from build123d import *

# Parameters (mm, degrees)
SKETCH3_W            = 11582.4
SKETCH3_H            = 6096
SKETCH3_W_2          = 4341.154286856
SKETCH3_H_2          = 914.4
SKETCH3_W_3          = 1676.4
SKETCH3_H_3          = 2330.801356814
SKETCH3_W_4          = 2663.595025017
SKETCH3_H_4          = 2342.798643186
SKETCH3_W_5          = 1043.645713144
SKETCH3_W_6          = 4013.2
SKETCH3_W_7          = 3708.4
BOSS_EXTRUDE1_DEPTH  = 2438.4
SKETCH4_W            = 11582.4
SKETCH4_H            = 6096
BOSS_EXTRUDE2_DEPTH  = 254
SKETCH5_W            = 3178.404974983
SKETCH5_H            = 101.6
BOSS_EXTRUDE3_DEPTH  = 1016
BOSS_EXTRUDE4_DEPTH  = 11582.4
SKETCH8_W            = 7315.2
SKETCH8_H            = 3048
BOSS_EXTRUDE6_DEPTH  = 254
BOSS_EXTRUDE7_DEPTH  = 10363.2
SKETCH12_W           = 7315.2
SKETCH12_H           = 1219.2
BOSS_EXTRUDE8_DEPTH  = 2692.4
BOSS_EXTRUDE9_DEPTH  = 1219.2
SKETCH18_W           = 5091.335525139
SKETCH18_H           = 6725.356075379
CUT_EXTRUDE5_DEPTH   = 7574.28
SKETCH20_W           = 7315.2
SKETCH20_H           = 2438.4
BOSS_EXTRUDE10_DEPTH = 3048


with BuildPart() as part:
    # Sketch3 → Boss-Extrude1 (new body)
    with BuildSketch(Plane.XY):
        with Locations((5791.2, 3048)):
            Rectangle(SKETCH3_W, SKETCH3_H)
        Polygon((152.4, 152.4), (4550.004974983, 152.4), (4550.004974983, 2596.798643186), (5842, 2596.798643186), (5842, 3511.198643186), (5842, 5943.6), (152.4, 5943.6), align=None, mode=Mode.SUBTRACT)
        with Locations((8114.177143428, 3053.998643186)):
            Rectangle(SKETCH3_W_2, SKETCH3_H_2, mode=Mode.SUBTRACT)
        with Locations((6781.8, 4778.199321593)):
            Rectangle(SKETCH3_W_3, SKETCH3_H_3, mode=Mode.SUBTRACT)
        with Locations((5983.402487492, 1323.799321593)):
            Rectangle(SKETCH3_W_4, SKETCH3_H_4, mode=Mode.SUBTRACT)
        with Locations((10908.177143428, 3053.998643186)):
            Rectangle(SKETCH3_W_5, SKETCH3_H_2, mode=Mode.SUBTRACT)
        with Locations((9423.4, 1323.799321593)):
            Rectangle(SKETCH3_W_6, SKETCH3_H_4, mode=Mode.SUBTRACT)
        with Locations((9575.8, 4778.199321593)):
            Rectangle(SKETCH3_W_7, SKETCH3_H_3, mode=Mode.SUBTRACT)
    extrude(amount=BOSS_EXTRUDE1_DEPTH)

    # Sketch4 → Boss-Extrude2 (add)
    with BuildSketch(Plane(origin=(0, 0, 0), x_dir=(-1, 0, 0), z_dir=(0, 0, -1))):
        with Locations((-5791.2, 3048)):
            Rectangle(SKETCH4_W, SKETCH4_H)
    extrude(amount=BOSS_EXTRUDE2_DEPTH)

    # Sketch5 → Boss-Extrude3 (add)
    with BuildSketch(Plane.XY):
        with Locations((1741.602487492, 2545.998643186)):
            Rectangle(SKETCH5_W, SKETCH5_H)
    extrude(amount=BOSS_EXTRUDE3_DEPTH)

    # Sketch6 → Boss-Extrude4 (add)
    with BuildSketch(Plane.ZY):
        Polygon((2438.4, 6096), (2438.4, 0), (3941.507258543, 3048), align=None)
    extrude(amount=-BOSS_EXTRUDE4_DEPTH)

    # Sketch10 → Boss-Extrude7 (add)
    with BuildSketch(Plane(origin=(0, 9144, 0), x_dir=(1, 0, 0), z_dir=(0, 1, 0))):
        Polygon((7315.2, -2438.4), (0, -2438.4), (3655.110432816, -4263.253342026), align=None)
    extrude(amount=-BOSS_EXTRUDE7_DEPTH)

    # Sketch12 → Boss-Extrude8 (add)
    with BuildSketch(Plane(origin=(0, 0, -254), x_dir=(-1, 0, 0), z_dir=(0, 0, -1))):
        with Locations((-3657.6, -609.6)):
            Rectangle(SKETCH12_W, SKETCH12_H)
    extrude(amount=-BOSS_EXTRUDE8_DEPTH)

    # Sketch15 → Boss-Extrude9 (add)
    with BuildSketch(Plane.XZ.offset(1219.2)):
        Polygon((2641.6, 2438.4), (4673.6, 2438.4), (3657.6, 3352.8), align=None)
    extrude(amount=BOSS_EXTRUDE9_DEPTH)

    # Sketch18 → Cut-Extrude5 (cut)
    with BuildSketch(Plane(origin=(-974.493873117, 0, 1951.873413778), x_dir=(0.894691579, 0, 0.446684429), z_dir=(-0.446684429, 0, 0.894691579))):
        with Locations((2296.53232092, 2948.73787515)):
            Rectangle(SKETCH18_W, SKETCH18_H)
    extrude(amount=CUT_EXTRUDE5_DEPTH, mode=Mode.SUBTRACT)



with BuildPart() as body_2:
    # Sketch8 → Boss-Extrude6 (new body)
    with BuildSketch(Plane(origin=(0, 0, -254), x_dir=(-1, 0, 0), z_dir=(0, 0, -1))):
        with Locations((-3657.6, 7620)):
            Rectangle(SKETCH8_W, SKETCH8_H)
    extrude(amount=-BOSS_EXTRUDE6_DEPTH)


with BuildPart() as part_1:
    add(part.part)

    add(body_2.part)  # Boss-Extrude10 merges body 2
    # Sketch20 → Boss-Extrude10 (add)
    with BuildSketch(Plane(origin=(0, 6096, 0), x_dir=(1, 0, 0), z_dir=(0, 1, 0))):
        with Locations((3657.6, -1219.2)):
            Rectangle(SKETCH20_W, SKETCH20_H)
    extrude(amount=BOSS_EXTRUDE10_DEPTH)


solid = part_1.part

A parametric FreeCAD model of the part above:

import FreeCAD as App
import Part
import Sketcher
from FreeCAD import Vector
Q = App.Units.Quantity

doc = App.newDocument("Part")
body = doc.addObject("PartDesign::Body", "Body")

# Sketch on XY plane
sketch1 = doc.addObject("Sketcher::SketchObject", "Sketch")
body.addObject(sketch1)
sketch1.AttachmentSupport = (doc.XY_Plane, [""])
sketch1.MapMode = "FlatFace"
sketch1.addGeometry([
    Part.LineSegment(Vector(0, 6096, 0), Vector(0, 0, 0)),  # 0
    Part.LineSegment(Vector(0, 0, 0), Vector(11582.4, 0, 0)),  # 1
    Part.LineSegment(Vector(11582.4, 0, 0), Vector(11582.4, 6096, 0)),  # 2
    Part.LineSegment(Vector(11582.4, 6096, 0), Vector(0, 6096, 0)),  # 3
    Part.LineSegment(Vector(7315.2, 152.4, 0), Vector(4651.604975, 152.4, 0)),  # 4
    Part.LineSegment(Vector(4651.604975, 152.4, 0), Vector(4651.604975, 2495.198643, 0)),  # 5
    Part.LineSegment(Vector(4651.604975, 2495.198643, 0), Vector(7315.2, 2495.198643, 0)),  # 6
    Part.LineSegment(Vector(7315.2, 2495.198643, 0), Vector(7315.2, 152.4, 0)),  # 7
    Part.LineSegment(Vector(11430, 152.4, 0), Vector(7416.8, 152.4, 0)),  # 8
    Part.LineSegment(Vector(7416.8, 152.4, 0), Vector(7416.8, 2495.198643, 0)),  # 9
    Part.LineSegment(Vector(7416.8, 2495.198643, 0), Vector(11430, 2495.198643, 0)),  # 10
    Part.LineSegment(Vector(11430, 2495.198643, 0), Vector(11430, 152.4, 0)),  # 11
    Part.LineSegment(Vector(4550.004975, 152.4, 0), Vector(152.4, 152.4, 0)),  # 12
    Part.LineSegment(Vector(152.4, 152.4, 0), Vector(152.4, 5943.6, 0)),  # 13
    Part.LineSegment(Vector(152.4, 5943.6, 0), Vector(5842, 5943.6, 0)),  # 14
    Part.LineSegment(Vector(5842, 5943.6, 0), Vector(5842, 2596.798643, 0)),  # 15
    Part.LineSegment(Vector(5842, 2596.798643, 0), Vector(4550.004975, 2596.798643, 0)),  # 16
    Part.LineSegment(Vector(4550.004975, 2596.798643, 0), Vector(4550.004975, 152.4, 0)),  # 17
    Part.LineSegment(Vector(10284.754287, 2596.798643, 0), Vector(5943.6, 2596.798643, 0)),  # 18
    Part.LineSegment(Vector(5943.6, 2596.798643, 0), Vector(5943.6, 3511.198643, 0)),  # 19
    Part.LineSegment(Vector(5943.6, 3511.198643, 0), Vector(10284.754287, 3511.198643, 0)),  # 20
    Part.LineSegment(Vector(10284.754287, 3511.198643, 0), Vector(10284.754287, 2596.798643, 0)),  # 21
    Part.LineSegment(Vector(11430, 2596.798643, 0), Vector(10386.354287, 2596.798643, 0)),  # 22
    Part.LineSegment(Vector(10386.354287, 2596.798643, 0), Vector(10386.354287, 3511.198643, 0)),  # 23
    Part.LineSegment(Vector(10386.354287, 3511.198643, 0), Vector(11430, 3511.198643, 0)),  # 24
    Part.LineSegment(Vector(11430, 3511.198643, 0), Vector(11430, 2596.798643, 0)),  # 25
    Part.LineSegment(Vector(7620, 3612.798643, 0), Vector(5943.6, 3612.798643, 0)),  # 26
    Part.LineSegment(Vector(5943.6, 3612.798643, 0), Vector(5943.6, 5943.6, 0)),  # 27
    Part.LineSegment(Vector(5943.6, 5943.6, 0), Vector(7620, 5943.6, 0)),  # 28
    Part.LineSegment(Vector(7620, 5943.6, 0), Vector(7620, 3612.798643, 0)),  # 29
    Part.LineSegment(Vector(11430, 3612.798643, 0), Vector(7721.6, 3612.798643, 0)),  # 30
    Part.LineSegment(Vector(7721.6, 3612.798643, 0), Vector(7721.6, 5943.6, 0)),  # 31
    Part.LineSegment(Vector(7721.6, 5943.6, 0), Vector(11430, 5943.6, 0)),  # 32
    Part.LineSegment(Vector(11430, 5943.6, 0), Vector(11430, 3612.798643, 0)),  # 33
], False)
sketch1.addConstraint([
    Sketcher.Constraint("Coincident", 0, 2, 1, 1),
    Sketcher.Constraint("Coincident", 1, 2, 2, 1),
    Sketcher.Constraint("Coincident", 2, 2, 3, 1),
    Sketcher.Constraint("Coincident", 3, 2, 0, 1),
    Sketcher.Constraint("Coincident", 4, 2, 5, 1),
    Sketcher.Constraint("Coincident", 5, 2, 6, 1),
    Sketcher.Constraint("Coincident", 6, 2, 7, 1),
    Sketcher.Constraint("Coincident", 7, 2, 4, 1),
    Sketcher.Constraint("Coincident", 8, 2, 9, 1),
    Sketcher.Constraint("Coincident", 9, 2, 10, 1),
    Sketcher.Constraint("Coincident", 10, 2, 11, 1),
    Sketcher.Constraint("Coincident", 11, 2, 8, 1),
    Sketcher.Constraint("Coincident", 12, 2, 13, 1),
    Sketcher.Constraint("Coincident", 13, 2, 14, 1),
    Sketcher.Constraint("Coincident", 14, 2, 15, 1),
    Sketcher.Constraint("Coincident", 15, 2, 16, 1),
    Sketcher.Constraint("Coincident", 16, 2, 17, 1),
    Sketcher.Constraint("Coincident", 17, 2, 12, 1),
    Sketcher.Constraint("Coincident", 18, 2, 19, 1),
    Sketcher.Constraint("Coincident", 19, 2, 20, 1),
    Sketcher.Constraint("Coincident", 20, 2, 21, 1),
    Sketcher.Constraint("Coincident", 21, 2, 18, 1),
    Sketcher.Constraint("Coincident", 22, 2, 23, 1),
    Sketcher.Constraint("Coincident", 23, 2, 24, 1),
    Sketcher.Constraint("Coincident", 24, 2, 25, 1),
    Sketcher.Constraint("Coincident", 25, 2, 22, 1),
    Sketcher.Constraint("Coincident", 26, 2, 27, 1),
    Sketcher.Constraint("Coincident", 27, 2, 28, 1),
    Sketcher.Constraint("Coincident", 28, 2, 29, 1),
    Sketcher.Constraint("Coincident", 29, 2, 26, 1),
    Sketcher.Constraint("Coincident", 30, 2, 31, 1),
    Sketcher.Constraint("Coincident", 31, 2, 32, 1),
    Sketcher.Constraint("Coincident", 32, 2, 33, 1),
    Sketcher.Constraint("Coincident", 33, 2, 30, 1),
    Sketcher.Constraint("Vertical", 0),
    Sketcher.Constraint("Horizontal", 1),
    Sketcher.Constraint("Vertical", 2),
    Sketcher.Constraint("Horizontal", 3),
    Sketcher.Constraint("Horizontal", 4),
    Sketcher.Constraint("Vertical", 5),
    Sketcher.Constraint("Horizontal", 6),
    Sketcher.Constraint("Vertical", 7),
    Sketcher.Constraint("Horizontal", 8),
    Sketcher.Constraint("Vertical", 9),
    Sketcher.Constraint("Horizontal", 10),
    Sketcher.Constraint("Vertical", 11),
    Sketcher.Constraint("Horizontal", 12),
    Sketcher.Constraint("Vertical", 13),
    Sketcher.Constraint("Horizontal", 14),
    Sketcher.Constraint("Vertical", 15),
    Sketcher.Constraint("Horizontal", 16),
    Sketcher.Constraint("Vertical", 17),
    Sketcher.Constraint("Horizontal", 18),
    Sketcher.Constraint("Vertical", 19),
    Sketcher.Constraint("Horizontal", 20),
    Sketcher.Constraint("Vertical", 21),
    Sketcher.Constraint("Horizontal", 22),
    Sketcher.Constraint("Vertical", 23),
    Sketcher.Constraint("Horizontal", 24),
    Sketcher.Constraint("Vertical", 25),
    Sketcher.Constraint("Horizontal", 26),
    Sketcher.Constraint("Vertical", 27),
    Sketcher.Constraint("Horizontal", 28),
    Sketcher.Constraint("Vertical", 29),
    Sketcher.Constraint("Horizontal", 30),
    Sketcher.Constraint("Vertical", 31),
    Sketcher.Constraint("Horizontal", 32),
    Sketcher.Constraint("Vertical", 33),
    Sketcher.Constraint("Coincident", 0, 2, -1, 1),
    Sketcher.Constraint("Horizontal", 7, 2, 8, 2),
    Sketcher.Constraint("Horizontal", 6, 2, 9, 2),
    Sketcher.Constraint("Horizontal", 11, 2, 12, 2),
    Sketcher.Constraint("Horizontal", 16, 2, 18, 2),
    Sketcher.Constraint("Horizontal", 21, 2, 22, 2),
    Sketcher.Constraint("Horizontal", 20, 2, 23, 2),
    Sketcher.Constraint("Horizontal", 14, 2, 27, 2),
    Sketcher.Constraint("Horizontal", 29, 2, 30, 2),
    Sketcher.Constraint("Horizontal", 28, 2, 31, 2),
    Sketcher.Constraint("Vertical", 11, 2, 24, 2),
    Sketcher.Constraint("Vertical", 19, 2, 26, 2),
    Sketcher.Constraint("Vertical", 25, 2, 32, 2),
    Sketcher.Constraint("DistanceX", 1, 1, 1, 2, Q("456 in")),
    Sketcher.Constraint("DistanceX", 8, 2, 8, 1, Q("158 in")),
    Sketcher.Constraint("DistanceX", 14, 1, 14, 2, Q("224 in")),
    Sketcher.Constraint("DistanceX", 26, 2, 26, 1, Q("66 in")),
    Sketcher.Constraint("DistanceX", 30, 2, 30, 1, Q("146 in")),
    Sketcher.Constraint("DistanceY", 0, 2, 0, 1, Q("240 in")),
    Sketcher.Constraint("DistanceY", 13, 1, 13, 2, Q("228 in")),
    Sketcher.Constraint("DistanceY", 19, 1, 19, 2, Q("36 in")),
    Sketcher.Constraint("DistanceY", -1, 1, 4, 2, Q("6 in")),
    Sketcher.Constraint("DistanceX", -1, 1, 6, 2, Q("288 in")),
    Sketcher.Constraint("DistanceX", -1, 1, 8, 2, Q("292 in")),
    Sketcher.Constraint("DistanceX", -1, 1, 12, 2, Q("6 in")),
    Sketcher.Constraint("DistanceX", -1, 1, 18, 2, Q("234 in")),
    Sketcher.Constraint("DistanceY", 5, 2, 15, 2, Q("4 in")),
    Sketcher.Constraint("DistanceX", 16, 2, 5, 2, Q("4 in")),
    Sketcher.Constraint("DistanceX", 21, 2, 22, 2, Q("4 in")),
    Sketcher.Constraint("DistanceY", 19, 2, 26, 2, Q("4 in")),
    Sketcher.Constraint("DistanceX", 4, 2, 4, 1, 2663.595025),
    Sketcher.Constraint("DistanceX", 18, 2, 18, 1, 4341.154287),
    Sketcher.Constraint("DistanceY", 5, 1, 5, 2, 2342.798643),
])
pad1 = doc.addObject("PartDesign::Pad", "Pad")
body.addObject(pad1)
pad1.Profile = sketch1
pad1.Length = Q("96 in")

# Sketch on XY plane
sketch2 = doc.addObject("Sketcher::SketchObject", "Sketch001")
body.addObject(sketch2)
sketch2.AttachmentSupport = (doc.XY_Plane, [""])
sketch2.MapMode = "FlatFace"
sketch2.addGeometry([
    Part.LineSegment(Vector(11582.4, 6096, 0), Vector(11582.4, 0, 0)),
    Part.LineSegment(Vector(11582.4, 0, 0), Vector(0, 0, 0)),
    Part.LineSegment(Vector(0, 0, 0), Vector(0, 6096, 0)),
    Part.LineSegment(Vector(0, 6096, 0), Vector(11582.4, 6096, 0)),
], False)
sketch2.addConstraint([
    Sketcher.Constraint("Coincident", 0, 2, 1, 1),
    Sketcher.Constraint("Coincident", 1, 2, 2, 1),
    Sketcher.Constraint("Coincident", 2, 2, 3, 1),
    Sketcher.Constraint("Coincident", 3, 2, 0, 1),
    Sketcher.Constraint("Vertical", 0),
    Sketcher.Constraint("Horizontal", 1),
    Sketcher.Constraint("Vertical", 2),
    Sketcher.Constraint("Horizontal", 3),
    Sketcher.Constraint("Coincident", 1, 2, -1, 1),
    Sketcher.Constraint("DistanceX", 1, 2, 1, 1, Q("456 in")),
    Sketcher.Constraint("DistanceY", 0, 2, 0, 1, Q("240 in")),
])
pad2 = doc.addObject("PartDesign::Pad", "Pad001")
body.addObject(pad2)
pad2.Profile = sketch2
pad2.Length = Q("10 in")
pad2.Reversed = True

# Sketch on XY plane
sketch3 = doc.addObject("Sketcher::SketchObject", "Sketch002")
body.addObject(sketch3)
sketch3.AttachmentSupport = (doc.XY_Plane, [""])
sketch3.MapMode = "FlatFace"
sketch3.addGeometry([
    Part.LineSegment(Vector(152.4, 2596.798643, 0), Vector(152.4, 2495.198643, 0)),
    Part.LineSegment(Vector(152.4, 2495.198643, 0), Vector(3330.804975, 2495.198643, 0)),
    Part.LineSegment(Vector(3330.804975, 2495.198643, 0), Vector(3330.804975, 2596.798643, 0)),
    Part.LineSegment(Vector(3330.804975, 2596.798643, 0), Vector(152.4, 2596.798643, 0)),
], False)
sketch3.addConstraint([
    Sketcher.Constraint("Coincident", 0, 2, 1, 1),
    Sketcher.Constraint("Coincident", 1, 2, 2, 1),
    Sketcher.Constraint("Coincident", 2, 2, 3, 1),
    Sketcher.Constraint("Coincident", 3, 2, 0, 1),
    Sketcher.Constraint("Vertical", 0),
    Sketcher.Constraint("Horizontal", 1),
    Sketcher.Constraint("Vertical", 2),
    Sketcher.Constraint("Horizontal", 3),
    Sketcher.Constraint("DistanceY", 0, 2, 0, 1, Q("4 in")),
    Sketcher.Constraint("DistanceX", -1, 1, 0, 2, Q("6 in")),
    Sketcher.Constraint("DistanceX", 1, 1, 1, 2, 3178.404975),
    Sketcher.Constraint("DistanceY", -1, 1, 0, 2, 2495.198643),
])
pad3 = doc.addObject("PartDesign::Pad", "Pad002")
body.addObject(pad3)
pad3.Profile = sketch3
pad3.Length = Q("40 in")

# Sketch on YZ plane
sketch4 = doc.addObject("Sketcher::SketchObject", "Sketch003")
body.addObject(sketch4)
sketch4.AttachmentSupport = (doc.YZ_Plane, [""])
sketch4.MapMode = "FlatFace"
sketch4.addGeometry([
    Part.LineSegment(Vector(6096, 2438.4, 0), Vector(0, 2438.4, 0)),
    Part.LineSegment(Vector(0, 2438.4, 0), Vector(3048, 3941.507259, 0)),
    Part.LineSegment(Vector(3048, 3941.507259, 0), Vector(6096, 2438.4, 0)),
], False)
sketch4.addConstraint([
    Sketcher.Constraint("Coincident", 0, 2, 1, 1),
    Sketcher.Constraint("Coincident", 1, 2, 2, 1),
    Sketcher.Constraint("Coincident", 2, 2, 0, 1),
    Sketcher.Constraint("Horizontal", 0),
    Sketcher.Constraint("PointOnObject", 0, 2, -2),
    Sketcher.Constraint("Equal", 1, 2),
    Sketcher.Constraint("DistanceX", 0, 2, 0, 1, Q("240 in")),
    Sketcher.Constraint("DistanceY", -1, 1, 0, 2, Q("96 in")),
    Sketcher.Constraint("Angle", 1, Q("26.25 deg")),
])
pad4 = doc.addObject("PartDesign::Pad", "Pad003")
body.addObject(pad4)
pad4.Profile = sketch4
pad4.Length = Q("456 in")

# Sketch on XZ plane
sketch5 = doc.addObject("Sketcher::SketchObject", "Sketch004")
body.addObject(sketch5)
sketch5.AttachmentSupport = (doc.XZ_Plane, [""])
sketch5.MapMode = "FlatFace"
sketch5.AttachmentOffset = App.Placement(Vector(0, 0, -360 * 25.4), App.Rotation())
sketch5.addGeometry([
    Part.LineSegment(Vector(7315.2, 2438.4, 0), Vector(0, 2438.4, 0)),
    Part.LineSegment(Vector(0, 2438.4, 0), Vector(3655.110433, 4263.253342, 0)),
    Part.LineSegment(Vector(3655.110433, 4263.253342, 0), Vector(7315.2, 2438.4, 0)),
], False)
sketch5.addConstraint([
    Sketcher.Constraint("Coincident", 0, 2, 1, 1),
    Sketcher.Constraint("Coincident", 1, 2, 2, 1),
    Sketcher.Constraint("Coincident", 2, 2, 0, 1),
    Sketcher.Constraint("Horizontal", 0),
    Sketcher.Constraint("PointOnObject", 0, 2, -2),
    Sketcher.Constraint("DistanceX", 0, 2, 0, 1, Q("288 in")),
    Sketcher.Constraint("DistanceY", -1, 1, 0, 2, Q("96 in")),
    Sketcher.Constraint("Angle", 2, Q("-26.5 deg")),
    Sketcher.Constraint("Distance", 2, 4089.785491),
])
pad5 = doc.addObject("PartDesign::Pad", "Pad004")
body.addObject(pad5)
pad5.Profile = sketch5
pad5.Length = Q("408 in")

# Sketch on XY plane
sketch6 = doc.addObject("Sketcher::SketchObject", "Sketch005")
body.addObject(sketch6)
sketch6.AttachmentSupport = (doc.XY_Plane, [""])
sketch6.MapMode = "FlatFace"
sketch6.AttachmentOffset = App.Placement(Vector(0, 0, -10 * 25.4), App.Rotation())
sketch6.addGeometry([
    Part.LineSegment(Vector(7315.2, 0, 0), Vector(7315.2, -1219.2, 0)),
    Part.LineSegment(Vector(7315.2, -1219.2, 0), Vector(0, -1219.2, 0)),
    Part.LineSegment(Vector(0, -1219.2, 0), Vector(0, 0, 0)),
    Part.LineSegment(Vector(0, 0, 0), Vector(7315.2, 0, 0)),
], False)
sketch6.addConstraint([
    Sketcher.Constraint("Coincident", 0, 2, 1, 1),
    Sketcher.Constraint("Coincident", 1, 2, 2, 1),
    Sketcher.Constraint("Coincident", 2, 2, 3, 1),
    Sketcher.Constraint("Coincident", 3, 2, 0, 1),
    Sketcher.Constraint("Vertical", 0),
    Sketcher.Constraint("Horizontal", 1),
    Sketcher.Constraint("Vertical", 2),
    Sketcher.Constraint("Horizontal", 3),
    Sketcher.Constraint("Coincident", 2, 2, -1, 1),
    Sketcher.Constraint("DistanceX", 1, 2, 1, 1, Q("288 in")),
    Sketcher.Constraint("DistanceY", 0, 2, 0, 1, Q("48 in")),
])
pad6 = doc.addObject("PartDesign::Pad", "Pad005")
body.addObject(pad6)
pad6.Profile = sketch6
pad6.Length = Q("106 in")

# Sketch on XZ plane
sketch7 = doc.addObject("Sketcher::SketchObject", "Sketch006")
body.addObject(sketch7)
sketch7.AttachmentSupport = (doc.XZ_Plane, [""])
sketch7.MapMode = "FlatFace"
sketch7.AttachmentOffset = App.Placement(Vector(0, 0, 48 * 25.4), App.Rotation())
sketch7.addGeometry([
    Part.LineSegment(Vector(2641.6, 2438.4, 0), Vector(4673.6, 2438.4, 0)),
    Part.LineSegment(Vector(4673.6, 2438.4, 0), Vector(3657.6, 3352.8, 0)),
    Part.LineSegment(Vector(3657.6, 3352.8, 0), Vector(2641.6, 2438.4, 0)),
], False)
sketch7.addConstraint([
    Sketcher.Constraint("Coincident", 0, 2, 1, 1),
    Sketcher.Constraint("Coincident", 1, 2, 2, 1),
    Sketcher.Constraint("Coincident", 2, 2, 0, 1),
    Sketcher.Constraint("Horizontal", 0),
    Sketcher.Constraint("Equal", 1, 2),
    Sketcher.Constraint("DistanceX", 0, 1, 0, 2, Q("80 in")),
    Sketcher.Constraint("DistanceX", -1, 1, 0, 2, Q("184 in")),
    Sketcher.Constraint("DistanceY", -1, 1, 0, 2, Q("96 in")),
    Sketcher.Constraint("DistanceY", -1, 1, 1, 2, Q("132 in")),
])
pad7 = doc.addObject("PartDesign::Pad", "Pad006")
body.addObject(pad7)
pad7.Profile = sketch7
pad7.Length = Q("48 in")

# Sketch on an angled plane
sketch8 = doc.addObject("Sketcher::SketchObject", "Sketch007")
body.addObject(sketch8)
sketch8.Placement = App.Placement(Vector(-974.493873, 0, 1951.873414), App.Rotation(Vector(0.894691579, 0, 0.446684429), Vector(0, 1.000000001, 0), Vector(-0.446684429, 0, 0.894691579), "ZXY"))
sketch8.addGeometry([
    Part.LineSegment(Vector(-249.135442, 6311.415921, 0), Vector(-249.135442, -413.940163, 0)),
    Part.LineSegment(Vector(-249.135442, -413.940163, 0), Vector(4842.200087, -413.940163, 0)),
    Part.LineSegment(Vector(4842.200087, -413.940163, 0), Vector(4842.200087, 6311.415921, 0)),
    Part.LineSegment(Vector(4842.200087, 6311.415921, 0), Vector(-249.135442, 6311.415921, 0)),
], False)
sketch8.addConstraint([
    Sketcher.Constraint("Coincident", 0, 2, 1, 1),
    Sketcher.Constraint("Coincident", 1, 2, 2, 1),
    Sketcher.Constraint("Coincident", 2, 2, 3, 1),
    Sketcher.Constraint("Coincident", 3, 2, 0, 1),
    Sketcher.Constraint("Vertical", 0),
    Sketcher.Constraint("Horizontal", 1),
    Sketcher.Constraint("Vertical", 2),
    Sketcher.Constraint("Horizontal", 3),
    Sketcher.Constraint("DistanceX", 1, 1, 1, 2, 5091.335528),
    Sketcher.Constraint("DistanceY", 0, 2, 0, 1, 6725.356084),
    Sketcher.Constraint("DistanceX", 0, 2, -1, 1, 249.135442),
    Sketcher.Constraint("DistanceY", -1, 1, 2, 2, 6311.415921),
])
pocket1 = doc.addObject("PartDesign::Pocket", "Pocket")
body.addObject(pocket1)
pocket1.Profile = sketch8
pocket1.Length = Q("298.2 in")
pocket1.Reversed = True
body2 = doc.addObject("PartDesign::Body", "Body001")

# Sketch on XY plane
sketch9 = doc.addObject("Sketcher::SketchObject", "Sketch008")
body2.addObject(sketch9)
sketch9.AttachmentSupport = (doc.getObject("XY_Plane001"), [""])
sketch9.MapMode = "FlatFace"
sketch9.AttachmentOffset = App.Placement(Vector(0, 0, -10 * 25.4), App.Rotation())
sketch9.addGeometry([
    Part.LineSegment(Vector(7315.2, 9144, 0), Vector(7315.2, 6096, 0)),
    Part.LineSegment(Vector(7315.2, 6096, 0), Vector(0, 6096, 0)),
    Part.LineSegment(Vector(0, 6096, 0), Vector(0, 9144, 0)),
    Part.LineSegment(Vector(0, 9144, 0), Vector(7315.2, 9144, 0)),
], False)
sketch9.addConstraint([
    Sketcher.Constraint("Coincident", 0, 2, 1, 1),
    Sketcher.Constraint("Coincident", 1, 2, 2, 1),
    Sketcher.Constraint("Coincident", 2, 2, 3, 1),
    Sketcher.Constraint("Coincident", 3, 2, 0, 1),
    Sketcher.Constraint("Vertical", 0),
    Sketcher.Constraint("Horizontal", 1),
    Sketcher.Constraint("Vertical", 2),
    Sketcher.Constraint("Horizontal", 3),
    Sketcher.Constraint("PointOnObject", 1, 2, -2),
    Sketcher.Constraint("DistanceX", 1, 2, 1, 1, Q("288 in")),
    Sketcher.Constraint("DistanceY", 0, 2, 0, 1, Q("120 in")),
    Sketcher.Constraint("DistanceY", -1, 1, 0, 2, Q("240 in")),
])
pad8 = doc.addObject("PartDesign::Pad", "Pad007")
body2.addObject(pad8)
pad8.Profile = sketch9
pad8.Length = Q("10 in")
doc.recompute()

boolean = doc.addObject("PartDesign::Boolean", "Boolean")
body.addObject(boolean)
boolean.Type = "Fuse"
boolean.addObjects([body2])

# Sketch on XZ plane
sketch10 = doc.addObject("Sketcher::SketchObject", "Sketch009")
body.addObject(sketch10)
sketch10.AttachmentSupport = (doc.XZ_Plane, [""])
sketch10.MapMode = "FlatFace"
sketch10.AttachmentOffset = App.Placement(Vector(0, 0, -240 * 25.4), App.Rotation())
sketch10.addGeometry([
    Part.LineSegment(Vector(0, 0, 0), Vector(0, 2438.4, 0)),
    Part.LineSegment(Vector(0, 2438.4, 0), Vector(7315.2, 2438.4, 0)),
    Part.LineSegment(Vector(7315.2, 2438.4, 0), Vector(7315.2, 0, 0)),
    Part.LineSegment(Vector(7315.2, 0, 0), Vector(0, 0, 0)),
], False)
sketch10.addConstraint([
    Sketcher.Constraint("Coincident", 0, 2, 1, 1),
    Sketcher.Constraint("Coincident", 1, 2, 2, 1),
    Sketcher.Constraint("Coincident", 2, 2, 3, 1),
    Sketcher.Constraint("Coincident", 3, 2, 0, 1),
    Sketcher.Constraint("Vertical", 0),
    Sketcher.Constraint("Horizontal", 1),
    Sketcher.Constraint("Vertical", 2),
    Sketcher.Constraint("Horizontal", 3),
    Sketcher.Constraint("Coincident", 3, 2, -1, 1),
    Sketcher.Constraint("DistanceX", 1, 1, 1, 2, Q("288 in")),
    Sketcher.Constraint("DistanceY", 0, 1, 0, 2, Q("96 in")),
])
pad9 = doc.addObject("PartDesign::Pad", "Pad008")
body.addObject(pad9)
pad9.Profile = sketch10
pad9.Length = Q("120 in")
pad9.Reversed = True

doc.recompute()
